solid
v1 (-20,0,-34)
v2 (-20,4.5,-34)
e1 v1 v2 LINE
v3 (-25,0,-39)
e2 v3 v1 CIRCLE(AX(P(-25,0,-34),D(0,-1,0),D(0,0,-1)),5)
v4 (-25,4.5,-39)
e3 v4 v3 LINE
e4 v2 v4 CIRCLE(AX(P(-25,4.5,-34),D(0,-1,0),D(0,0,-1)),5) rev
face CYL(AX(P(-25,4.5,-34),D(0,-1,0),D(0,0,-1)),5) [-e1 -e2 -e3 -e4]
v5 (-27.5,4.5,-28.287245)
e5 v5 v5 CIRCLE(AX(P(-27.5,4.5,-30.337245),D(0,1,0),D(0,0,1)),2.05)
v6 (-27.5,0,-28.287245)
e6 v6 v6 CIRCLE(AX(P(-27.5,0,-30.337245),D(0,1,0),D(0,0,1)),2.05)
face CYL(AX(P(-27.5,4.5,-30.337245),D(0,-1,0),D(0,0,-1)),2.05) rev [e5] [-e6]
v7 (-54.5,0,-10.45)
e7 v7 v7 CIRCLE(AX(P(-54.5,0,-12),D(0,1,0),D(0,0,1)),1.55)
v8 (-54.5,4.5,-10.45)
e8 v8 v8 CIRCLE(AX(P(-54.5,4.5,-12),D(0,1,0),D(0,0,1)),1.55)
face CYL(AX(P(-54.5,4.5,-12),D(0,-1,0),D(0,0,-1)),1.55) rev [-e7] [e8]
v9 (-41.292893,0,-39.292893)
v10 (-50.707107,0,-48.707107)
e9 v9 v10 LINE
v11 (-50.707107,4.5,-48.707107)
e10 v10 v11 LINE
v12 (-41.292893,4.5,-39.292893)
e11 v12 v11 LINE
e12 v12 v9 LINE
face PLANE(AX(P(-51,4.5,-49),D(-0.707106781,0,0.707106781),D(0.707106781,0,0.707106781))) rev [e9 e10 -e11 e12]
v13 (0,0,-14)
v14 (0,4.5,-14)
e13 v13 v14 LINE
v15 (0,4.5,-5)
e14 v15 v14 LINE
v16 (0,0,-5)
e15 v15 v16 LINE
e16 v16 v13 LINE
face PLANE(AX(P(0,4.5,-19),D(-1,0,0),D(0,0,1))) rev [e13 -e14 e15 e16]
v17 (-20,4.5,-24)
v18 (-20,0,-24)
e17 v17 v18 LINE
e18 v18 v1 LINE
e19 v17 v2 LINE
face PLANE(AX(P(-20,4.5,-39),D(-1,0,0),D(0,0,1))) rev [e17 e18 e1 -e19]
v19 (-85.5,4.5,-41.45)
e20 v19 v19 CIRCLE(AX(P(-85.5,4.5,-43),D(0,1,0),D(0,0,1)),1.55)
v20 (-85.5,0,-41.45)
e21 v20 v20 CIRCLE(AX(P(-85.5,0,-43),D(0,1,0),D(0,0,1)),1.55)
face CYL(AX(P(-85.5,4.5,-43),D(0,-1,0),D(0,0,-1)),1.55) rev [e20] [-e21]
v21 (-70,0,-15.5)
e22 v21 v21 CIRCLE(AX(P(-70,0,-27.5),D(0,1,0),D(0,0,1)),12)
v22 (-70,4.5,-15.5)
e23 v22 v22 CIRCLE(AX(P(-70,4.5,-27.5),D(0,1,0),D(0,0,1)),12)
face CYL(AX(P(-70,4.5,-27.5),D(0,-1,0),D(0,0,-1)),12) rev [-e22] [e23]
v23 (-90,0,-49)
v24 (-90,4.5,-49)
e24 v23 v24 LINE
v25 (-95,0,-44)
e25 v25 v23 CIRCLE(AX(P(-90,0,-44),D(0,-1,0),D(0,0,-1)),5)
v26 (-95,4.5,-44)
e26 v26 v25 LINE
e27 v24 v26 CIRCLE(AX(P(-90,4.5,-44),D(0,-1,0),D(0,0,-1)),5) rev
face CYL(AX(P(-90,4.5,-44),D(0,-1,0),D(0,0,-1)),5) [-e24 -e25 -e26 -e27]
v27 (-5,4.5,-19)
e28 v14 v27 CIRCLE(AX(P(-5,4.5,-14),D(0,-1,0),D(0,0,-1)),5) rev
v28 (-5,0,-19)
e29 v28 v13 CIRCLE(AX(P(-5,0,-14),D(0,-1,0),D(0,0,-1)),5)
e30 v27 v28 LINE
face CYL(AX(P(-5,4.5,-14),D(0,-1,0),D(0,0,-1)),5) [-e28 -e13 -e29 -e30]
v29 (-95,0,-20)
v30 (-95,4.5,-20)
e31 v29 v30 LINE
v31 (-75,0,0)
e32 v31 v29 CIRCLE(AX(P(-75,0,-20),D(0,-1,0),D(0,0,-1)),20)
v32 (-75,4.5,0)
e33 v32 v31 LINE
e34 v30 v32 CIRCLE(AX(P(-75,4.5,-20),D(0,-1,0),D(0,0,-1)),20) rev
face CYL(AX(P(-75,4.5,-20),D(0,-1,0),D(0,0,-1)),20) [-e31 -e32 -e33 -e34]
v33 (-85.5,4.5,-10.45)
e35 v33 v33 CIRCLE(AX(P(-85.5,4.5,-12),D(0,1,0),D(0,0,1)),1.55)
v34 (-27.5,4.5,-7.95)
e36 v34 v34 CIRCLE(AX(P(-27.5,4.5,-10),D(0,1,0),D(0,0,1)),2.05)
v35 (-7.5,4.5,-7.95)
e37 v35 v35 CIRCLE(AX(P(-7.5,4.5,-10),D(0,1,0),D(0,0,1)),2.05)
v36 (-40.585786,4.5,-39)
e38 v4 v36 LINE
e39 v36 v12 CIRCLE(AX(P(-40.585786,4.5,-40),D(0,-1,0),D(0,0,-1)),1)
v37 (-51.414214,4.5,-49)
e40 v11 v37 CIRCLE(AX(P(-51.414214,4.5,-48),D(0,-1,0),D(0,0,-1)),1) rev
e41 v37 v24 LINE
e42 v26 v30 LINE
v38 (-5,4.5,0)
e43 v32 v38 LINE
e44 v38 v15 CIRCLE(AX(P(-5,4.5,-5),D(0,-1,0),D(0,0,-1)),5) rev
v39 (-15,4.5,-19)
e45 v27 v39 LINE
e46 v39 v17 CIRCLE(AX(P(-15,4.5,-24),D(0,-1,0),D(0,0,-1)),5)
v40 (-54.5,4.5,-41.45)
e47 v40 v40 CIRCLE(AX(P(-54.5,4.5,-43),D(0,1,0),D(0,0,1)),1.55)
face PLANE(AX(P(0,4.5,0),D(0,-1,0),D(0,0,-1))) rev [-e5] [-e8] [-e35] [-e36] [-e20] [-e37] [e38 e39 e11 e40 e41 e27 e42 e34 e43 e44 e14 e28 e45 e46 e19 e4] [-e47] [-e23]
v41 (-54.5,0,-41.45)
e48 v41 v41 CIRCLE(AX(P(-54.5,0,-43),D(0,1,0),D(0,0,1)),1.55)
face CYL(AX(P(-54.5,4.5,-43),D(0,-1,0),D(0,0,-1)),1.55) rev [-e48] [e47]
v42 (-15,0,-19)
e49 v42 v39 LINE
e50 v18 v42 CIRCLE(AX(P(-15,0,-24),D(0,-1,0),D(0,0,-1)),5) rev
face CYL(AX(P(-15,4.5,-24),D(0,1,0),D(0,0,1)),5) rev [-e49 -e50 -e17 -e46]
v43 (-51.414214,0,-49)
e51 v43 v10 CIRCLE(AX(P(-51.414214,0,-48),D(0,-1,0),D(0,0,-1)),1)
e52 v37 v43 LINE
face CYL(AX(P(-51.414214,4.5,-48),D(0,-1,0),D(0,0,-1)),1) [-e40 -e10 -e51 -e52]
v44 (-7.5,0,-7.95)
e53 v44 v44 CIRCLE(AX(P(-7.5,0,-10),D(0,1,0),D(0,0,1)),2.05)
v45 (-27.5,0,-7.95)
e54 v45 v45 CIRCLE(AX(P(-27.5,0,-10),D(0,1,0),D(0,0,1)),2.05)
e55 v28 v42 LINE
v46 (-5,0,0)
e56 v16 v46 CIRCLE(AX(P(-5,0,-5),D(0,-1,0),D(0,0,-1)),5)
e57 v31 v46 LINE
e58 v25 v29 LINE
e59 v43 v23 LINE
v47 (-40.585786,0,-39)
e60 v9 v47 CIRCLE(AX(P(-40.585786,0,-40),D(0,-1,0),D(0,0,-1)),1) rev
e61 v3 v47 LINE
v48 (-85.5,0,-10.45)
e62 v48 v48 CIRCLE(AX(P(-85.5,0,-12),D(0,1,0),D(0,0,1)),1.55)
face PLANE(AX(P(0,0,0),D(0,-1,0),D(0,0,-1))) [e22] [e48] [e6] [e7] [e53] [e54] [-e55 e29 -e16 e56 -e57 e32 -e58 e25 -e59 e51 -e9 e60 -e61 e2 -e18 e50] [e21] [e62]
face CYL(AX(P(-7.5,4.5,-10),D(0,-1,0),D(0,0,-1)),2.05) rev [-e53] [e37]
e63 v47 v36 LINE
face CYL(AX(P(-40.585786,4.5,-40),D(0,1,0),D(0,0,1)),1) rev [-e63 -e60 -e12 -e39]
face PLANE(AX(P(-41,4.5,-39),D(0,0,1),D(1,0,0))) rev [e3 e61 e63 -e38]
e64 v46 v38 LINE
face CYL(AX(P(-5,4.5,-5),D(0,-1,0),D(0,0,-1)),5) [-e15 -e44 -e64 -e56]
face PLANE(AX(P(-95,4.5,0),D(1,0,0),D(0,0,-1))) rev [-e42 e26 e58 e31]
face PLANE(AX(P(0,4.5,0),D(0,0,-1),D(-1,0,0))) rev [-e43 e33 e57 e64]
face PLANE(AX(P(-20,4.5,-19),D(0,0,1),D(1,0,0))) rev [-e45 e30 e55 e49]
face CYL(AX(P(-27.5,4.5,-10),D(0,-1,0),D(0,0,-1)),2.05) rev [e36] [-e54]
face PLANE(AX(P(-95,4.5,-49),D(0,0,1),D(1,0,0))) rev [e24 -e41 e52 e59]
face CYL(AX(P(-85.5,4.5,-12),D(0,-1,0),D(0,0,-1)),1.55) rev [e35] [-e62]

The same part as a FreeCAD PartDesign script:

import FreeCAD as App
import Part
import Sketcher
from FreeCAD import Vector
Q = App.Units.Quantity


def edges_at(feature, points):
    """Names of the edges that pass closest to the given points."""
    edges = feature.Shape.Edges
    near = lambda p: min(range(len(edges)), key=lambda i: edges[i].distToShape(Part.Vertex(*p))[0])
    return sorted({f"Edge{near(p) + 1}" for p in points})


def add_polygon(sketch, points):
    """Adds a closed chain of lines whose ends are joined by coincident constraints."""
    first, n = sketch.GeometryCount, len(points)
    for a, b in zip(points, points[1:] + points[:1]):
        sketch.addGeometry(Part.LineSegment(App.Vector(*a, 0), App.Vector(*b, 0)), False)
    for i in range(n):
        sketch.addConstraint(Sketcher.Constraint("Coincident", first + i, 2, first + (i + 1) % n, 1))

doc = App.newDocument("Part")
body = doc.addObject("PartDesign::Body", "Body")

# Sketch on XZ plane
sketch1 = body.newObject("Sketcher::SketchObject", "Sketch")
sketch1.AttachmentSupport = (doc.getObject("XZ_Plane"), [""])
sketch1.MapMode = "FlatFace"
add_polygon(sketch1, [(-95, 0), (0, 0), (0, -19), (-20, -19), (-20, -39), (-41, -39), (-51, -49), (-95, -49)])  # lines 0-7
sketch1.addGeometry(Part.Circle(Vector(-7.5, -10, 0), Vector(0, 0, 1), 2.05), False)  # 8
sketch1.addGeometry(Part.Circle(Vector(-27.5, -10, 0), Vector(0, 0, 1), 2.05), False)  # 9
sketch1.addGeometry(Part.Circle(Vector(-54.5, -12, 0), Vector(0, 0, 1), 1.55), False)  # 10
sketch1.addGeometry(Part.Circle(Vector(-85.5, -12, 0), Vector(0, 0, 1), 1.55), False)  # 11
sketch1.addGeometry(Part.Circle(Vector(-27.5, -30.337245, 0), Vector(0, 0, 1), 2.05), False)  # 12
sketch1.addGeometry(Part.Circle(Vector(-70, -27.5, 0), Vector(0, 0, 1), 12), False)  # 13
sketch1.addGeometry(Part.Circle(Vector(-54.5, -43, 0), Vector(0, 0, 1), 1.55), False)  # 14
sketch1.addGeometry(Part.Circle(Vector(-85.5, -43, 0), Vector(0, 0, 1), 1.55), False)  # 15
sketch1.addConstraint([
    Sketcher.Constraint("Horizontal", 0),
    Sketcher.Constraint("Vertical", 1),
    Sketcher.Constraint("Horizontal", 2),
    Sketcher.Constraint("Vertical", 3),
    Sketcher.Constraint("Horizontal", 4),
    Sketcher.Constraint("Horizontal", 6),
    Sketcher.Constraint("Vertical", 7),
    Sketcher.Constraint("Coincident", 0, 2, -1, 1),
    Sketcher.Constraint("Equal", 8, 9),
    Sketcher.Constraint("Equal", 10, 11),
    Sketcher.Constraint("Equal", 9, 12),
    Sketcher.Constraint("Equal", 11, 14),
    Sketcher.Constraint("Equal", 14, 15),
    Sketcher.Constraint("Horizontal", 8, 3, 9, 3),
    Sketcher.Constraint("Horizontal", 10, 3, 11, 3),
    Sketcher.Constraint("Horizontal", 14, 3, 15, 3),
    Sketcher.Constraint("Vertical", 9, 3, 12, 3),
    Sketcher.Constraint("Vertical", 10, 3, 14, 3),
    Sketcher.Constraint("Vertical", 11, 3, 15, 3),
    Sketcher.Constraint("Equal", 2, 3),
    Sketcher.Constraint("Diameter", 13, Q("24 mm")),
    Sketcher.Constraint("Diameter", 8, Q("4.1 mm")),
    Sketcher.Constraint("Diameter", 10, Q("3.1 mm")),
    Sketcher.Constraint("DistanceX", 0, 1, 0, 2, Q("95 mm")),
    Sketcher.Constraint("DistanceX", 2, 2, 2, 1, Q("20 mm")),
    Sketcher.Constraint("DistanceX", 4, 2, 4, 1, Q("21 mm")),
    Sketcher.Constraint("DistanceX", 6, 2, 6, 1, Q("44 mm")),
    Sketcher.Constraint("DistanceY", 1, 2, 1, 1, Q("19 mm")),
    Sketcher.Constraint("DistanceY", 7, 1, 7, 2, Q("49 mm")),
    Sketcher.Constraint("DistanceY", 8, 3, -1, 1, Q("10 mm")),
    Sketcher.Constraint("DistanceY", 10, 3, -1, 1, Q("12 mm")),
    Sketcher.Constraint("DistanceX", 13, 3, -1, 1, Q("70 mm")),
    Sketcher.Constraint("DistanceY", 14, 3, -1, 1, Q("43 mm")),
    Sketcher.Constraint("DistanceX", 9, 3, 8, 3, Q("20 mm")),
    Sketcher.Constraint("DistanceX", 10, 3, 9, 3, Q("27 mm")),
    Sketcher.Constraint("DistanceX", 11, 3, 10, 3, Q("31 mm")),
    Sketcher.Constraint("DistanceX", 8, 3, -1, 1, Q("7.5 mm")),
    Sketcher.Constraint("DistanceY", 13, 3, -1, 1, Q("27.5 mm")),
    Sketcher.Constraint("DistanceY", 12, 3, -1, 1, Q("30.337245 mm")),
])
pad1 = body.newObject("PartDesign::Pad", "Pad")
pad1.Profile = sketch1
pad1.Length = 4.5
pad1.Reversed = True
doc.recompute()

fillet = body.newObject("PartDesign::Fillet", "Fillet")
fillet.Base = (pad1, edges_at(pad1, [(-95, 2.25, 0)]))
fillet.Radius = 20
doc.recompute()

fillet2 = body.newObject("PartDesign::Fillet", "Fillet001")
fillet2.Base = (fillet, edges_at(fillet, [
    (0, 2.25, 0),
    (-95, 2.25, -49),
    (-20, 2.25, -39),
    (-20, 2.25, -19),
    (0, 2.25, -19),
]))
fillet2.Radius = 5
doc.recompute()

fillet3 = body.newObject("PartDesign::Fillet", "Fillet002")
fillet3.Base = (fillet2, edges_at(fillet2, [(-51, 2.25, -49), (-41, 2.25, -39)]))
fillet3.Radius = 1

doc.recompute()
